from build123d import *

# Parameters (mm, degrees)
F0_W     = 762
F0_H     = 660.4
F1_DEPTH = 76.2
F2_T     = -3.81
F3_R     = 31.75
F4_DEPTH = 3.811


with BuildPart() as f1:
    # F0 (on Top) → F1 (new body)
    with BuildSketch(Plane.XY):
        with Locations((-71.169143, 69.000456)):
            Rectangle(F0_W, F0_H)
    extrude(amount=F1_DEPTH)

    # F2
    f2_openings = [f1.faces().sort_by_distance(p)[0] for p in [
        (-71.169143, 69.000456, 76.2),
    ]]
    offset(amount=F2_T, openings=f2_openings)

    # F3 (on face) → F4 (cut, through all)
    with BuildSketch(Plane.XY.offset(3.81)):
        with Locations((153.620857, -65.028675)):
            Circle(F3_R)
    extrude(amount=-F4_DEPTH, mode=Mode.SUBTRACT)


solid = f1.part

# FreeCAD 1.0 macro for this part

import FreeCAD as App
import Part
import Sketcher
from FreeCAD import Vector
Q = App.Units.Quantity


def faces_at(feature, points):
    """Names of the faces that lie closest to the given points."""
    faces = feature.Shape.Faces
    near = lambda p: min(range(len(faces)), key=lambda i: faces[i].distToShape(Part.Vertex(*p))[0])
    return sorted({f"Face{near(p) + 1}" for p in points})


def add_polygon(sketch, points):
    """Adds a closed chain of lines whose ends are joined by coincident constraints."""
    first, n = sketch.GeometryCount, len(points)
    for a, b in zip(points, points[1:] + points[:1]):
        sketch.addGeometry(Part.LineSegment(App.Vector(*a, 0), App.Vector(*b, 0)), False)
    for i in range(n):
        sketch.addConstraint(Sketcher.Constraint("Coincident", first + i, 2, first + (i + 1) % n, 1))

doc = App.newDocument("Part")
body = doc.addObject("PartDesign::Body", "Body")

# Sketch on XY plane
sketch1 = body.newObject("Sketcher::SketchObject", "Sketch")
sketch1.AttachmentSupport = (doc.getObject("XY_Plane"), [""])
sketch1.MapMode = "FlatFace"
add_polygon(sketch1, [(-452, 399), (-452, -261), (310, -261), (310, 399)])  # lines 0-3
sketch1.addConstraint([
    Sketcher.Constraint("Vertical", 0),
    Sketcher.Constraint("Horizontal", 1),
    Sketcher.Constraint("Vertical", 2),
    Sketcher.Constraint("Horizontal", 3),
    Sketcher.Constraint("DistanceX", 1, 1, 1, 2, Q("30 in")),
    Sketcher.Constraint("DistanceY", 0, 2, 0, 1, Q("26 in")),
    Sketcher.Constraint("DistanceX", 0, 2, -1, 1, 452.169143),
    Sketcher.Constraint("DistanceY", 0, 2, -1, 1, 261.199544),
])
pad1 = body.newObject("PartDesign::Pad", "Pad")
pad1.Profile = sketch1
pad1.Length = Q("3 in")
doc.recompute()

thickness = body.newObject("PartDesign::Thickness", "Thickness")
thickness.Base = (pad1, faces_at(pad1, [(-71.169, 69, 76.2)]))
thickness.Value = Q("0.15 in")
thickness.Reversed = True
thickness.Join = "Arc"

# Sketch on XY plane
sketch2 = body.newObject("Sketcher::SketchObject", "Sketch001")
sketch2.AttachmentSupport = (doc.getObject("XY_Plane"), [""])
sketch2.MapMode = "FlatFace"
sketch2.AttachmentOffset = App.Placement(Vector(0, 0, 0.15 * 25.4), App.Rotation())
sketch2.addGeometry(Part.Circle(Vector(154, -65, 0), Vector(0, 0, 1), 32), False)
sketch2.addConstraint([
    Sketcher.Constraint("Diameter", 0, Q("2.5 in")),
    Sketcher.Constraint("DistanceX", -1, 1, 0, 3, 153.620857),
    Sketcher.Constraint("DistanceY", 0, 3, -1, 1, 65.028675),
])
pocket1 = body.newObject("PartDesign::Pocket", "Pocket")
pocket1.Profile = sketch2
pocket1.Type = "ThroughAll"

doc.recompute()
